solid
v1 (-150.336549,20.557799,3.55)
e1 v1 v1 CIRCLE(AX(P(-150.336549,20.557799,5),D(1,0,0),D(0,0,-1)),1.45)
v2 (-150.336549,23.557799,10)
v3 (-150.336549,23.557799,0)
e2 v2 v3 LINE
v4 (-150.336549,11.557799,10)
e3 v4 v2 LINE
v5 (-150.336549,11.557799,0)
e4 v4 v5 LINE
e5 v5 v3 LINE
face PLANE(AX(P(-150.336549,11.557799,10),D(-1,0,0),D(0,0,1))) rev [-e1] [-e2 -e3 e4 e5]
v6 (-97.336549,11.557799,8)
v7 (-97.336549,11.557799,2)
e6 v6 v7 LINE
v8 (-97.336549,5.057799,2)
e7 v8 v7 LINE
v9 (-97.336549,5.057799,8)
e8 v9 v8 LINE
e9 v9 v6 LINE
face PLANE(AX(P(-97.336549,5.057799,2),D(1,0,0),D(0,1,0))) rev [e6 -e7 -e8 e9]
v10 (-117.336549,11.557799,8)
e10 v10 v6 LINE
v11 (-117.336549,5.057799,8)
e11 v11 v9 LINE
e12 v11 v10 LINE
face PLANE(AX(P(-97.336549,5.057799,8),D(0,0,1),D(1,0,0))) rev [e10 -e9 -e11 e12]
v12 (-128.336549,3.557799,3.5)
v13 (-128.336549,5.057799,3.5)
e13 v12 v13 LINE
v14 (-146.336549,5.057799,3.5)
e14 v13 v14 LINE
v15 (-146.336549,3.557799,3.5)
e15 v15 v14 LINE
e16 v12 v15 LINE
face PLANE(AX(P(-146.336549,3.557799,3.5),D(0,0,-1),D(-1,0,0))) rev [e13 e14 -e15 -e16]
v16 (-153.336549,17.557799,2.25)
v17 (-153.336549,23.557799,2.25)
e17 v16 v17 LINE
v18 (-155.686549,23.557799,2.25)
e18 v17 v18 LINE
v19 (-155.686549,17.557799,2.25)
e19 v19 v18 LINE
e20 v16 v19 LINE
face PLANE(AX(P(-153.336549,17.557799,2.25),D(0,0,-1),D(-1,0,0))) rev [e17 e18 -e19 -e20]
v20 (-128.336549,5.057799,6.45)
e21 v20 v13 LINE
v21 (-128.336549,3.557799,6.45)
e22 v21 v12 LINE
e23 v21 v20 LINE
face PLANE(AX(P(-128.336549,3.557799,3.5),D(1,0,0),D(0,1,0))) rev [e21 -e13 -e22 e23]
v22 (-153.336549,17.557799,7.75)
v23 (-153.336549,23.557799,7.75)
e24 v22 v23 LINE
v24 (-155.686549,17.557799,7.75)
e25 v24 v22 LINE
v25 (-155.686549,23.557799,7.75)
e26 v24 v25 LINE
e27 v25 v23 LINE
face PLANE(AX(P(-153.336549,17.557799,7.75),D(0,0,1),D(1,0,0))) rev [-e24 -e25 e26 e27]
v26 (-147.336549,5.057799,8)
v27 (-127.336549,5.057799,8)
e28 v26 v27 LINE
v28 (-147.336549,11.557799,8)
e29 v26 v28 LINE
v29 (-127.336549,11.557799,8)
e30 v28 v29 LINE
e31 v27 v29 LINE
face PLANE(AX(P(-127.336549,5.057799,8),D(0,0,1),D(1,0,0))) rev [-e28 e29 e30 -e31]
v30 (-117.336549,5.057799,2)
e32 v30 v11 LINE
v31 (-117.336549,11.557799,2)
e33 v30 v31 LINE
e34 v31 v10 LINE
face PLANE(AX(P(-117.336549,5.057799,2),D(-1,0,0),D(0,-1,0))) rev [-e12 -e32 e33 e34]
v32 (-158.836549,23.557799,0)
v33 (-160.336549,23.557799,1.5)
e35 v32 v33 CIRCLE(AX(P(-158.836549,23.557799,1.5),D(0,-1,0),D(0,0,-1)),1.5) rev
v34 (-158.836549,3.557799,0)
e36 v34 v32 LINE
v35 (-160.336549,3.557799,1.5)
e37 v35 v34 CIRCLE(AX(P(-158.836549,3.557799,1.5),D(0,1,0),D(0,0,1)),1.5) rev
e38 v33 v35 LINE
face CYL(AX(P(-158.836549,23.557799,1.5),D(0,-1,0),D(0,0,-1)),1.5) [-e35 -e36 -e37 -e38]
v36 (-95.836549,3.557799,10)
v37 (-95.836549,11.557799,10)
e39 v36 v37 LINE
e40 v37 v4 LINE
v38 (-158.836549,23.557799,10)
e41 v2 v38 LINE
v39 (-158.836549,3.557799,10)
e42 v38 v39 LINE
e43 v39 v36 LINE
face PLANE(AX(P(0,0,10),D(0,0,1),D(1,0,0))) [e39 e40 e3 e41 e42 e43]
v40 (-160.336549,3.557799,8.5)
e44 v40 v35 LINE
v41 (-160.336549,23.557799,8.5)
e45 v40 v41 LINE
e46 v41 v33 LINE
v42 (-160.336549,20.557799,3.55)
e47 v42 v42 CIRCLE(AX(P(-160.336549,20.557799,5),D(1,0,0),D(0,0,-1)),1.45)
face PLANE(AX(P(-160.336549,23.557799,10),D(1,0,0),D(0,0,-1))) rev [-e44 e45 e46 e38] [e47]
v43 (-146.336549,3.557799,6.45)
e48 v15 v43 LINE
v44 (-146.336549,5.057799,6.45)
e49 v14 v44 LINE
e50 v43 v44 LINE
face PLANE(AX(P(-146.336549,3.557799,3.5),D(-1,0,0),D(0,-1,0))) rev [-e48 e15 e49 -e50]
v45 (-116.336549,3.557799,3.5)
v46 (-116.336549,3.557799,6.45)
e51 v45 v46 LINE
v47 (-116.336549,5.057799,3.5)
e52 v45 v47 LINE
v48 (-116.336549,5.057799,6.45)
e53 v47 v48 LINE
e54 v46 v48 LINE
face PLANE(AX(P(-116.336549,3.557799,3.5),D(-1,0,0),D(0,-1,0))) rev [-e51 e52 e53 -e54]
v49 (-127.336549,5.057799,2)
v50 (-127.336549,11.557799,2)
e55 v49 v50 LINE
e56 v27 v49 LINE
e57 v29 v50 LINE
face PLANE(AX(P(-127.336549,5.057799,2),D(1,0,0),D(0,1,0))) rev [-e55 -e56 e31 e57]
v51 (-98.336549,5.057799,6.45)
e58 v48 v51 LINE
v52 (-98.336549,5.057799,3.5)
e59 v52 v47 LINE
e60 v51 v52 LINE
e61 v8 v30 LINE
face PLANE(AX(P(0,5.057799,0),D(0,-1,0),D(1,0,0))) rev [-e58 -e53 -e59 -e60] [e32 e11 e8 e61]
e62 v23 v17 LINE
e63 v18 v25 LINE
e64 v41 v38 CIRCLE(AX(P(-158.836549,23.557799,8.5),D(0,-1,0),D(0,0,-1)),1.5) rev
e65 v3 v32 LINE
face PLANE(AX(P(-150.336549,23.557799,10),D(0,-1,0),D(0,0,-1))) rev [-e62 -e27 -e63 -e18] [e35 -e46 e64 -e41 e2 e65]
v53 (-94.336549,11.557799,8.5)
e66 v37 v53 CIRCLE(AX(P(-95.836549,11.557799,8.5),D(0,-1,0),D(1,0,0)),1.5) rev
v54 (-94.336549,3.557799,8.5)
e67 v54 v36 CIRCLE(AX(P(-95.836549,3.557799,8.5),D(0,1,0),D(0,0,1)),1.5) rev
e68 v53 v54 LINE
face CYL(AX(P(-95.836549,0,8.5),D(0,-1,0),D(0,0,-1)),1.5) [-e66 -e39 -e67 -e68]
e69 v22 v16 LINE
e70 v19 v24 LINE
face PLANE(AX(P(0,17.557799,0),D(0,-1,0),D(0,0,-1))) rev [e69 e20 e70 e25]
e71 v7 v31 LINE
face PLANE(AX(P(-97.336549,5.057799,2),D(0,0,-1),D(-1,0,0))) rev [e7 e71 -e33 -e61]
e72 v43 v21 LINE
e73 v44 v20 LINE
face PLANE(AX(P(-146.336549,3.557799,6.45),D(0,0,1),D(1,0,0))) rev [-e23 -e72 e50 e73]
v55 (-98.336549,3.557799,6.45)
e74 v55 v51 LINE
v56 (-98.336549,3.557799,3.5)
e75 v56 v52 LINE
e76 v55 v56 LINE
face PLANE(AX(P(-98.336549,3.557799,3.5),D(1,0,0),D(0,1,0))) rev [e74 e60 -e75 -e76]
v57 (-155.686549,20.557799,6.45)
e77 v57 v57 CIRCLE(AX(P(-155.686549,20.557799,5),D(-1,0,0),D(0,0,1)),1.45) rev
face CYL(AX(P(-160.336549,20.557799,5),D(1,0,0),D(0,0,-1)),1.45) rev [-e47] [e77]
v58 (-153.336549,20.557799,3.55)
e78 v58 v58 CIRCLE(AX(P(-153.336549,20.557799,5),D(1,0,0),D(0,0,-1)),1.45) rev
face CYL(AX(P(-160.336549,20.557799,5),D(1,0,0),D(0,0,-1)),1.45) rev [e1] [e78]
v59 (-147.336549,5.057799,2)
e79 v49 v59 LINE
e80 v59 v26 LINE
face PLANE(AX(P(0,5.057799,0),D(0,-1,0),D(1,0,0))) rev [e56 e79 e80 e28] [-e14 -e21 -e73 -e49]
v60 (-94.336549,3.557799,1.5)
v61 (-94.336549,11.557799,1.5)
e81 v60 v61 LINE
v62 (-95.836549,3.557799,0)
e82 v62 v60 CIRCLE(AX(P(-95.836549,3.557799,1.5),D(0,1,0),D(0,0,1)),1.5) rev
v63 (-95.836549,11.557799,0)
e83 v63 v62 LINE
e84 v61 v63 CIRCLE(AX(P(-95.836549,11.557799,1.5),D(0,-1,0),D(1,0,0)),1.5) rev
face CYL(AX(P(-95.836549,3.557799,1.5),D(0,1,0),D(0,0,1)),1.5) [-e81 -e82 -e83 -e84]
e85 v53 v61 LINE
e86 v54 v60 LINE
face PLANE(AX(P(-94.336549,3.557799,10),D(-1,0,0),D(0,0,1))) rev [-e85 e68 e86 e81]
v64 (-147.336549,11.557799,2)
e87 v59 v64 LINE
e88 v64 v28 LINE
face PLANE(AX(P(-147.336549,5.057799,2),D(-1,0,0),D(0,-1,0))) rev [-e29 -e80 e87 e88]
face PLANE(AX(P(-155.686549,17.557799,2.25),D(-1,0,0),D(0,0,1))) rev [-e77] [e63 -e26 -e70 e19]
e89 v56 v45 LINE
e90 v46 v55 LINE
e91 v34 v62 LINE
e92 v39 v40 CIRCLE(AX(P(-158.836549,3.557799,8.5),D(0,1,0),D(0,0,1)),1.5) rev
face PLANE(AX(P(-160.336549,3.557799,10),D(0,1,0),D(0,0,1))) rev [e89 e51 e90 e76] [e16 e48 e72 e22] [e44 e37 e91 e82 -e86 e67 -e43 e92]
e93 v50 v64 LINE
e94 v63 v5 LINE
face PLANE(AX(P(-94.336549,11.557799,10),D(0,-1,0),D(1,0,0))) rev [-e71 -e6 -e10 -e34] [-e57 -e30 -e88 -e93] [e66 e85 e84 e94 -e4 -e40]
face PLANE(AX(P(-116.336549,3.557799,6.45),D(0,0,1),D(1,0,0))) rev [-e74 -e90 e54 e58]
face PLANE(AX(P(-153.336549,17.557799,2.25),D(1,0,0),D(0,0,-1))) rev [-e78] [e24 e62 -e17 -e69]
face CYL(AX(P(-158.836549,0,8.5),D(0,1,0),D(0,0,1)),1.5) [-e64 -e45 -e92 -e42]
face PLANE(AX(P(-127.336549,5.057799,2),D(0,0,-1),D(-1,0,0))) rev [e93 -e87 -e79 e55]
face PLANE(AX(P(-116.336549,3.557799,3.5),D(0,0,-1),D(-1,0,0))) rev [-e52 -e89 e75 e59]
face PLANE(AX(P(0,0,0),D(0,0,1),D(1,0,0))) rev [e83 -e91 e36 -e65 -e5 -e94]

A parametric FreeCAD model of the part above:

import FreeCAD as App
import Part
import Sketcher
from FreeCAD import Vector


def edges_at(feature, points):
    """Names of the edges that pass closest to the given points."""
    edges = feature.Shape.Edges
    near = lambda p: min(range(len(edges)), key=lambda i: edges[i].distToShape(Part.Vertex(*p))[0])
    return sorted({f"Edge{near(p) + 1}" for p in points})


def add_polygon(sketch, points):
    """Adds a closed chain of lines whose ends are joined by coincident constraints."""
    first, n = sketch.GeometryCount, len(points)
    for a, b in zip(points, points[1:] + points[:1]):
        sketch.addGeometry(Part.LineSegment(App.Vector(*a, 0), App.Vector(*b, 0)), False)
    for i in range(n):
        sketch.addConstraint(Sketcher.Constraint("Coincident", first + i, 2, first + (i + 1) % n, 1))

doc = App.newDocument("Part")
params = doc.addObject("Spreadsheet::Sheet", "Params")
for row, (alias, value) in enumerate([
    ("sketch1_width", "66 mm"),
    ("sketch1_width2", "56 mm"),
    ("sketch1_height", "20 mm"),
    ("sketch1_height2", "8 mm"),
    ("pad1_length", "10 mm"),
    ("fillet_radius", "1.5 mm"),
    ("sketch2_width", "20 mm"),
    ("sketch2_height", "6 mm"),
    ("pocket1_length", "6.5 mm"),
    ("sketch3_width", "18 mm"),
    ("sketch3_height", "2.95 mm"),
    ("pocket2_length", "1.5 mm"),
    ("sketch4_diameter", "2.9 mm"),
    ("pocket3_length", "10 mm"),
    ("sketch5_height", "5.5 mm"),
    ("sketch5_width", "2.35 mm"),
    ("pocket4_length", "6 mm"),
], start=1):
    params.set(f"A{row}", alias)
    params.set(f"B{row}", "=" + value)
    params.setAlias(f"B{row}", alias)

body = doc.addObject("PartDesign::Body", "Body")

# Sketch on XY plane
sketch1 = body.newObject("Sketcher::SketchObject", "Sketch")
sketch1.AttachmentSupport = (doc.getObject("XY_Plane"), [""])
sketch1.MapMode = "FlatFace"
add_polygon(sketch1, [(-160, 24), (-160, 4), (-94, 4), (-94, 12), (-150, 12), (-150, 24)])  # lines 0-5
sketch1.addConstraint([
    Sketcher.Constraint("Vertical", 0),
    Sketcher.Constraint("Horizontal", 1),
    Sketcher.Constraint("Vertical", 2),
    Sketcher.Constraint("Horizontal", 3),
    Sketcher.Constraint("Vertical", 4),
    Sketcher.Constraint("Horizontal", 5),
    Sketcher.Constraint("DistanceX", 1, 1, 1, 2, 66.0),
    Sketcher.Constraint("DistanceX", 3, 2, 3, 1, 56.0),
    Sketcher.Constraint("DistanceY", 0, 2, 0, 1, 20.0),
    Sketcher.Constraint("DistanceY", 2, 1, 2, 2, 8.0),
    Sketcher.Constraint("DistanceY", -1, 1, 0, 2, 3.557799),
    Sketcher.Constraint("DistanceX", 0, 2, -1, 1, 160.336549),
])
sketch1.setExpression("Constraints[12]", "Params.sketch1_width")
sketch1.setExpression("Constraints[13]", "Params.sketch1_width2")
sketch1.setExpression("Constraints[14]", "Params.sketch1_height")
sketch1.setExpression("Constraints[15]", "Params.sketch1_height2")
pad1 = body.newObject("PartDesign::Pad", "Pad")
pad1.Profile = sketch1
pad1.setExpression("Length", "Params.pad1_length")
doc.recompute()

fillet = body.newObject("PartDesign::Fillet", "Fillet")
fillet.Base = (pad1, edges_at(pad1, [
    (-94.337, 7.558, 10),
    (-94.337, 7.558, 0),
    (-160.337, 13.558, 10),
    (-160.337, 13.558, 0),
]))
fillet.setExpression("Radius", "Params.fillet_radius")

# Sketch on XZ plane
sketch2 = body.newObject("Sketcher::SketchObject", "Sketch001")
sketch2.AttachmentSupport = (doc.getObject("XZ_Plane"), [""])
sketch2.MapMode = "FlatFace"
sketch2.AttachmentOffset = App.Placement(Vector(0, 0, -11.557799), App.Rotation())
add_polygon(sketch2, [(-117, 2), (-117, 8), (-97, 8), (-97, 2)])  # lines 0-3
add_polygon(sketch2, [(-147, 2), (-147, 8), (-127, 8), (-127, 2)])  # lines 4-7
sketch2.addConstraint([
    Sketcher.Constraint("Vertical", 0),
    Sketcher.Constraint("Horizontal", 1),
    Sketcher.Constraint("Vertical", 2),
    Sketcher.Constraint("Horizontal", 3),
    Sketcher.Constraint("Vertical", 4),
    Sketcher.Constraint("Horizontal", 5),
    Sketcher.Constraint("Vertical", 6),
    Sketcher.Constraint("Horizontal", 7),
    Sketcher.Constraint("Horizontal", 1, 2, 4, 2),
    Sketcher.Constraint("Horizontal", 3, 2, 6, 2),
    Sketcher.Constraint("Equal", 3, 5),
    Sketcher.Constraint("DistanceX", 1, 1, 1, 2, 20.0),
    Sketcher.Constraint("DistanceY", 0, 1, 0, 2, 6.0),
    Sketcher.Constraint("DistanceY", -1, 1, 0, 2, 8.0),
    Sketcher.Constraint("DistanceX", 4, 2, 0, 2, 30.0),
    Sketcher.Constraint("DistanceX", 0, 2, -1, 1, 117.336549),
])
sketch2.setExpression("Constraints[19]", "Params.sketch2_width")
sketch2.setExpression("Constraints[20]", "Params.sketch2_height")
pocket1 = body.newObject("PartDesign::Pocket", "Pocket")
pocket1.Profile = sketch2
pocket1.setExpression("Length", "Params.pocket1_length")
pocket1.Reversed = True

# Sketch on XZ plane
sketch3 = body.newObject("Sketcher::SketchObject", "Sketch002")
sketch3.AttachmentSupport = (doc.getObject("XZ_Plane"), [""])
sketch3.MapMode = "FlatFace"
sketch3.AttachmentOffset = App.Placement(Vector(0, 0, -5.057799), App.Rotation())
add_polygon(sketch3, [(-116.3, 3.5), (-116.3, 6.5), (-98.3, 6.5), (-98.3, 3.5)])  # lines 0-3
add_polygon(sketch3, [(-146.3, 3.5), (-146.3, 6.5), (-128.3, 6.5), (-128.3, 3.5)])  # lines 4-7
sketch3.addConstraint([
    Sketcher.Constraint("Vertical", 0),
    Sketcher.Constraint("Horizontal", 1),
    Sketcher.Constraint("Vertical", 2),
    Sketcher.Constraint("Horizontal", 3),
    Sketcher.Constraint("Vertical", 4),
    Sketcher.Constraint("Horizontal", 5),
    Sketcher.Constraint("Vertical", 6),
    Sketcher.Constraint("Horizontal", 7),
    Sketcher.Constraint("Horizontal", 1, 2, 4, 2),
    Sketcher.Constraint("Horizontal", 3, 2, 6, 2),
    Sketcher.Constraint("Equal", 3, 5),
    Sketcher.Constraint("DistanceX", 1, 1, 1, 2, 18.0),
    Sketcher.Constraint("DistanceX", 4, 2, 0, 2, 30.0),
    Sketcher.Constraint("DistanceY", 0, 1, 0, 2, 2.95),
    Sketcher.Constraint("DistanceY", -1, 1, 2, 2, 3.5),
    Sketcher.Constraint("DistanceX", 0, 2, -1, 1, 116.336549),
])
sketch3.setExpression("Constraints[19]", "Params.sketch3_width")
sketch3.setExpression("Constraints[21]", "Params.sketch3_height")
pocket2 = body.newObject("PartDesign::Pocket", "Pocket001")
pocket2.Profile = sketch3
pocket2.setExpression("Length", "Params.pocket2_length")
pocket2.Reversed = True

# Sketch on YZ plane
sketch4 = body.newObject("Sketcher::SketchObject", "Sketch003")
sketch4.AttachmentSupport = (doc.getObject("YZ_Plane"), [""])
sketch4.MapMode = "FlatFace"
sketch4.AttachmentOffset = App.Placement(Vector(0, 0, -150.336549), App.Rotation())
sketch4.addGeometry(Part.Circle(Vector(20.6, 5, 0), Vector(0, 0, 1), 1.4), False)
sketch4.addConstraint([
    Sketcher.Constraint("Diameter", 0, 2.9),
    Sketcher.Constraint("DistanceY", -1, 1, 0, 3, 5.0),
    Sketcher.Constraint("DistanceX", -1, 1, 0, 3, 20.557799),
])
sketch4.setExpression("Constraints[0]", "Params.sketch4_diameter")
pocket3 = body.newObject("PartDesign::Pocket", "Pocket002")
pocket3.Profile = sketch4
pocket3.setExpression("Length", "Params.pocket3_length")

# Sketch on XZ plane
sketch5 = body.newObject("Sketcher::SketchObject", "Sketch004")
sketch5.AttachmentSupport = (doc.getObject("XZ_Plane"), [""])
sketch5.MapMode = "FlatFace"
sketch5.AttachmentOffset = App.Placement(Vector(0, 0, -23.557799), App.Rotation())
add_polygon(sketch5, [(-155.7, 2.2), (-155.7, 7.8), (-153.3, 7.8), (-153.3, 2.2)])  # lines 0-3
sketch5.addConstraint([
    Sketcher.Constraint("Vertical", 0),
    Sketcher.Constraint("Horizontal", 1),
    Sketcher.Constraint("Vertical", 2),
    Sketcher.Constraint("Horizontal", 3),
    Sketcher.Constraint("DistanceY", 0, 1, 0, 2, 5.5),
    Sketcher.Constraint("DistanceX", 1, 1, 1, 2, 2.35),
    Sketcher.Constraint("DistanceY", -1, 1, 0, 2, 7.75),
    Sketcher.Constraint("DistanceX", 0, 2, -1, 1, 155.686549),
])
sketch5.setExpression("Constraints[8]", "Params.sketch5_height")
sketch5.setExpression("Constraints[9]", "Params.sketch5_width")
pocket4 = body.newObject("PartDesign::Pocket", "Pocket003")
pocket4.Profile = sketch5
pocket4.setExpression("Length", "Params.pocket4_length")
pocket4.Reversed = True

doc.recompute()
